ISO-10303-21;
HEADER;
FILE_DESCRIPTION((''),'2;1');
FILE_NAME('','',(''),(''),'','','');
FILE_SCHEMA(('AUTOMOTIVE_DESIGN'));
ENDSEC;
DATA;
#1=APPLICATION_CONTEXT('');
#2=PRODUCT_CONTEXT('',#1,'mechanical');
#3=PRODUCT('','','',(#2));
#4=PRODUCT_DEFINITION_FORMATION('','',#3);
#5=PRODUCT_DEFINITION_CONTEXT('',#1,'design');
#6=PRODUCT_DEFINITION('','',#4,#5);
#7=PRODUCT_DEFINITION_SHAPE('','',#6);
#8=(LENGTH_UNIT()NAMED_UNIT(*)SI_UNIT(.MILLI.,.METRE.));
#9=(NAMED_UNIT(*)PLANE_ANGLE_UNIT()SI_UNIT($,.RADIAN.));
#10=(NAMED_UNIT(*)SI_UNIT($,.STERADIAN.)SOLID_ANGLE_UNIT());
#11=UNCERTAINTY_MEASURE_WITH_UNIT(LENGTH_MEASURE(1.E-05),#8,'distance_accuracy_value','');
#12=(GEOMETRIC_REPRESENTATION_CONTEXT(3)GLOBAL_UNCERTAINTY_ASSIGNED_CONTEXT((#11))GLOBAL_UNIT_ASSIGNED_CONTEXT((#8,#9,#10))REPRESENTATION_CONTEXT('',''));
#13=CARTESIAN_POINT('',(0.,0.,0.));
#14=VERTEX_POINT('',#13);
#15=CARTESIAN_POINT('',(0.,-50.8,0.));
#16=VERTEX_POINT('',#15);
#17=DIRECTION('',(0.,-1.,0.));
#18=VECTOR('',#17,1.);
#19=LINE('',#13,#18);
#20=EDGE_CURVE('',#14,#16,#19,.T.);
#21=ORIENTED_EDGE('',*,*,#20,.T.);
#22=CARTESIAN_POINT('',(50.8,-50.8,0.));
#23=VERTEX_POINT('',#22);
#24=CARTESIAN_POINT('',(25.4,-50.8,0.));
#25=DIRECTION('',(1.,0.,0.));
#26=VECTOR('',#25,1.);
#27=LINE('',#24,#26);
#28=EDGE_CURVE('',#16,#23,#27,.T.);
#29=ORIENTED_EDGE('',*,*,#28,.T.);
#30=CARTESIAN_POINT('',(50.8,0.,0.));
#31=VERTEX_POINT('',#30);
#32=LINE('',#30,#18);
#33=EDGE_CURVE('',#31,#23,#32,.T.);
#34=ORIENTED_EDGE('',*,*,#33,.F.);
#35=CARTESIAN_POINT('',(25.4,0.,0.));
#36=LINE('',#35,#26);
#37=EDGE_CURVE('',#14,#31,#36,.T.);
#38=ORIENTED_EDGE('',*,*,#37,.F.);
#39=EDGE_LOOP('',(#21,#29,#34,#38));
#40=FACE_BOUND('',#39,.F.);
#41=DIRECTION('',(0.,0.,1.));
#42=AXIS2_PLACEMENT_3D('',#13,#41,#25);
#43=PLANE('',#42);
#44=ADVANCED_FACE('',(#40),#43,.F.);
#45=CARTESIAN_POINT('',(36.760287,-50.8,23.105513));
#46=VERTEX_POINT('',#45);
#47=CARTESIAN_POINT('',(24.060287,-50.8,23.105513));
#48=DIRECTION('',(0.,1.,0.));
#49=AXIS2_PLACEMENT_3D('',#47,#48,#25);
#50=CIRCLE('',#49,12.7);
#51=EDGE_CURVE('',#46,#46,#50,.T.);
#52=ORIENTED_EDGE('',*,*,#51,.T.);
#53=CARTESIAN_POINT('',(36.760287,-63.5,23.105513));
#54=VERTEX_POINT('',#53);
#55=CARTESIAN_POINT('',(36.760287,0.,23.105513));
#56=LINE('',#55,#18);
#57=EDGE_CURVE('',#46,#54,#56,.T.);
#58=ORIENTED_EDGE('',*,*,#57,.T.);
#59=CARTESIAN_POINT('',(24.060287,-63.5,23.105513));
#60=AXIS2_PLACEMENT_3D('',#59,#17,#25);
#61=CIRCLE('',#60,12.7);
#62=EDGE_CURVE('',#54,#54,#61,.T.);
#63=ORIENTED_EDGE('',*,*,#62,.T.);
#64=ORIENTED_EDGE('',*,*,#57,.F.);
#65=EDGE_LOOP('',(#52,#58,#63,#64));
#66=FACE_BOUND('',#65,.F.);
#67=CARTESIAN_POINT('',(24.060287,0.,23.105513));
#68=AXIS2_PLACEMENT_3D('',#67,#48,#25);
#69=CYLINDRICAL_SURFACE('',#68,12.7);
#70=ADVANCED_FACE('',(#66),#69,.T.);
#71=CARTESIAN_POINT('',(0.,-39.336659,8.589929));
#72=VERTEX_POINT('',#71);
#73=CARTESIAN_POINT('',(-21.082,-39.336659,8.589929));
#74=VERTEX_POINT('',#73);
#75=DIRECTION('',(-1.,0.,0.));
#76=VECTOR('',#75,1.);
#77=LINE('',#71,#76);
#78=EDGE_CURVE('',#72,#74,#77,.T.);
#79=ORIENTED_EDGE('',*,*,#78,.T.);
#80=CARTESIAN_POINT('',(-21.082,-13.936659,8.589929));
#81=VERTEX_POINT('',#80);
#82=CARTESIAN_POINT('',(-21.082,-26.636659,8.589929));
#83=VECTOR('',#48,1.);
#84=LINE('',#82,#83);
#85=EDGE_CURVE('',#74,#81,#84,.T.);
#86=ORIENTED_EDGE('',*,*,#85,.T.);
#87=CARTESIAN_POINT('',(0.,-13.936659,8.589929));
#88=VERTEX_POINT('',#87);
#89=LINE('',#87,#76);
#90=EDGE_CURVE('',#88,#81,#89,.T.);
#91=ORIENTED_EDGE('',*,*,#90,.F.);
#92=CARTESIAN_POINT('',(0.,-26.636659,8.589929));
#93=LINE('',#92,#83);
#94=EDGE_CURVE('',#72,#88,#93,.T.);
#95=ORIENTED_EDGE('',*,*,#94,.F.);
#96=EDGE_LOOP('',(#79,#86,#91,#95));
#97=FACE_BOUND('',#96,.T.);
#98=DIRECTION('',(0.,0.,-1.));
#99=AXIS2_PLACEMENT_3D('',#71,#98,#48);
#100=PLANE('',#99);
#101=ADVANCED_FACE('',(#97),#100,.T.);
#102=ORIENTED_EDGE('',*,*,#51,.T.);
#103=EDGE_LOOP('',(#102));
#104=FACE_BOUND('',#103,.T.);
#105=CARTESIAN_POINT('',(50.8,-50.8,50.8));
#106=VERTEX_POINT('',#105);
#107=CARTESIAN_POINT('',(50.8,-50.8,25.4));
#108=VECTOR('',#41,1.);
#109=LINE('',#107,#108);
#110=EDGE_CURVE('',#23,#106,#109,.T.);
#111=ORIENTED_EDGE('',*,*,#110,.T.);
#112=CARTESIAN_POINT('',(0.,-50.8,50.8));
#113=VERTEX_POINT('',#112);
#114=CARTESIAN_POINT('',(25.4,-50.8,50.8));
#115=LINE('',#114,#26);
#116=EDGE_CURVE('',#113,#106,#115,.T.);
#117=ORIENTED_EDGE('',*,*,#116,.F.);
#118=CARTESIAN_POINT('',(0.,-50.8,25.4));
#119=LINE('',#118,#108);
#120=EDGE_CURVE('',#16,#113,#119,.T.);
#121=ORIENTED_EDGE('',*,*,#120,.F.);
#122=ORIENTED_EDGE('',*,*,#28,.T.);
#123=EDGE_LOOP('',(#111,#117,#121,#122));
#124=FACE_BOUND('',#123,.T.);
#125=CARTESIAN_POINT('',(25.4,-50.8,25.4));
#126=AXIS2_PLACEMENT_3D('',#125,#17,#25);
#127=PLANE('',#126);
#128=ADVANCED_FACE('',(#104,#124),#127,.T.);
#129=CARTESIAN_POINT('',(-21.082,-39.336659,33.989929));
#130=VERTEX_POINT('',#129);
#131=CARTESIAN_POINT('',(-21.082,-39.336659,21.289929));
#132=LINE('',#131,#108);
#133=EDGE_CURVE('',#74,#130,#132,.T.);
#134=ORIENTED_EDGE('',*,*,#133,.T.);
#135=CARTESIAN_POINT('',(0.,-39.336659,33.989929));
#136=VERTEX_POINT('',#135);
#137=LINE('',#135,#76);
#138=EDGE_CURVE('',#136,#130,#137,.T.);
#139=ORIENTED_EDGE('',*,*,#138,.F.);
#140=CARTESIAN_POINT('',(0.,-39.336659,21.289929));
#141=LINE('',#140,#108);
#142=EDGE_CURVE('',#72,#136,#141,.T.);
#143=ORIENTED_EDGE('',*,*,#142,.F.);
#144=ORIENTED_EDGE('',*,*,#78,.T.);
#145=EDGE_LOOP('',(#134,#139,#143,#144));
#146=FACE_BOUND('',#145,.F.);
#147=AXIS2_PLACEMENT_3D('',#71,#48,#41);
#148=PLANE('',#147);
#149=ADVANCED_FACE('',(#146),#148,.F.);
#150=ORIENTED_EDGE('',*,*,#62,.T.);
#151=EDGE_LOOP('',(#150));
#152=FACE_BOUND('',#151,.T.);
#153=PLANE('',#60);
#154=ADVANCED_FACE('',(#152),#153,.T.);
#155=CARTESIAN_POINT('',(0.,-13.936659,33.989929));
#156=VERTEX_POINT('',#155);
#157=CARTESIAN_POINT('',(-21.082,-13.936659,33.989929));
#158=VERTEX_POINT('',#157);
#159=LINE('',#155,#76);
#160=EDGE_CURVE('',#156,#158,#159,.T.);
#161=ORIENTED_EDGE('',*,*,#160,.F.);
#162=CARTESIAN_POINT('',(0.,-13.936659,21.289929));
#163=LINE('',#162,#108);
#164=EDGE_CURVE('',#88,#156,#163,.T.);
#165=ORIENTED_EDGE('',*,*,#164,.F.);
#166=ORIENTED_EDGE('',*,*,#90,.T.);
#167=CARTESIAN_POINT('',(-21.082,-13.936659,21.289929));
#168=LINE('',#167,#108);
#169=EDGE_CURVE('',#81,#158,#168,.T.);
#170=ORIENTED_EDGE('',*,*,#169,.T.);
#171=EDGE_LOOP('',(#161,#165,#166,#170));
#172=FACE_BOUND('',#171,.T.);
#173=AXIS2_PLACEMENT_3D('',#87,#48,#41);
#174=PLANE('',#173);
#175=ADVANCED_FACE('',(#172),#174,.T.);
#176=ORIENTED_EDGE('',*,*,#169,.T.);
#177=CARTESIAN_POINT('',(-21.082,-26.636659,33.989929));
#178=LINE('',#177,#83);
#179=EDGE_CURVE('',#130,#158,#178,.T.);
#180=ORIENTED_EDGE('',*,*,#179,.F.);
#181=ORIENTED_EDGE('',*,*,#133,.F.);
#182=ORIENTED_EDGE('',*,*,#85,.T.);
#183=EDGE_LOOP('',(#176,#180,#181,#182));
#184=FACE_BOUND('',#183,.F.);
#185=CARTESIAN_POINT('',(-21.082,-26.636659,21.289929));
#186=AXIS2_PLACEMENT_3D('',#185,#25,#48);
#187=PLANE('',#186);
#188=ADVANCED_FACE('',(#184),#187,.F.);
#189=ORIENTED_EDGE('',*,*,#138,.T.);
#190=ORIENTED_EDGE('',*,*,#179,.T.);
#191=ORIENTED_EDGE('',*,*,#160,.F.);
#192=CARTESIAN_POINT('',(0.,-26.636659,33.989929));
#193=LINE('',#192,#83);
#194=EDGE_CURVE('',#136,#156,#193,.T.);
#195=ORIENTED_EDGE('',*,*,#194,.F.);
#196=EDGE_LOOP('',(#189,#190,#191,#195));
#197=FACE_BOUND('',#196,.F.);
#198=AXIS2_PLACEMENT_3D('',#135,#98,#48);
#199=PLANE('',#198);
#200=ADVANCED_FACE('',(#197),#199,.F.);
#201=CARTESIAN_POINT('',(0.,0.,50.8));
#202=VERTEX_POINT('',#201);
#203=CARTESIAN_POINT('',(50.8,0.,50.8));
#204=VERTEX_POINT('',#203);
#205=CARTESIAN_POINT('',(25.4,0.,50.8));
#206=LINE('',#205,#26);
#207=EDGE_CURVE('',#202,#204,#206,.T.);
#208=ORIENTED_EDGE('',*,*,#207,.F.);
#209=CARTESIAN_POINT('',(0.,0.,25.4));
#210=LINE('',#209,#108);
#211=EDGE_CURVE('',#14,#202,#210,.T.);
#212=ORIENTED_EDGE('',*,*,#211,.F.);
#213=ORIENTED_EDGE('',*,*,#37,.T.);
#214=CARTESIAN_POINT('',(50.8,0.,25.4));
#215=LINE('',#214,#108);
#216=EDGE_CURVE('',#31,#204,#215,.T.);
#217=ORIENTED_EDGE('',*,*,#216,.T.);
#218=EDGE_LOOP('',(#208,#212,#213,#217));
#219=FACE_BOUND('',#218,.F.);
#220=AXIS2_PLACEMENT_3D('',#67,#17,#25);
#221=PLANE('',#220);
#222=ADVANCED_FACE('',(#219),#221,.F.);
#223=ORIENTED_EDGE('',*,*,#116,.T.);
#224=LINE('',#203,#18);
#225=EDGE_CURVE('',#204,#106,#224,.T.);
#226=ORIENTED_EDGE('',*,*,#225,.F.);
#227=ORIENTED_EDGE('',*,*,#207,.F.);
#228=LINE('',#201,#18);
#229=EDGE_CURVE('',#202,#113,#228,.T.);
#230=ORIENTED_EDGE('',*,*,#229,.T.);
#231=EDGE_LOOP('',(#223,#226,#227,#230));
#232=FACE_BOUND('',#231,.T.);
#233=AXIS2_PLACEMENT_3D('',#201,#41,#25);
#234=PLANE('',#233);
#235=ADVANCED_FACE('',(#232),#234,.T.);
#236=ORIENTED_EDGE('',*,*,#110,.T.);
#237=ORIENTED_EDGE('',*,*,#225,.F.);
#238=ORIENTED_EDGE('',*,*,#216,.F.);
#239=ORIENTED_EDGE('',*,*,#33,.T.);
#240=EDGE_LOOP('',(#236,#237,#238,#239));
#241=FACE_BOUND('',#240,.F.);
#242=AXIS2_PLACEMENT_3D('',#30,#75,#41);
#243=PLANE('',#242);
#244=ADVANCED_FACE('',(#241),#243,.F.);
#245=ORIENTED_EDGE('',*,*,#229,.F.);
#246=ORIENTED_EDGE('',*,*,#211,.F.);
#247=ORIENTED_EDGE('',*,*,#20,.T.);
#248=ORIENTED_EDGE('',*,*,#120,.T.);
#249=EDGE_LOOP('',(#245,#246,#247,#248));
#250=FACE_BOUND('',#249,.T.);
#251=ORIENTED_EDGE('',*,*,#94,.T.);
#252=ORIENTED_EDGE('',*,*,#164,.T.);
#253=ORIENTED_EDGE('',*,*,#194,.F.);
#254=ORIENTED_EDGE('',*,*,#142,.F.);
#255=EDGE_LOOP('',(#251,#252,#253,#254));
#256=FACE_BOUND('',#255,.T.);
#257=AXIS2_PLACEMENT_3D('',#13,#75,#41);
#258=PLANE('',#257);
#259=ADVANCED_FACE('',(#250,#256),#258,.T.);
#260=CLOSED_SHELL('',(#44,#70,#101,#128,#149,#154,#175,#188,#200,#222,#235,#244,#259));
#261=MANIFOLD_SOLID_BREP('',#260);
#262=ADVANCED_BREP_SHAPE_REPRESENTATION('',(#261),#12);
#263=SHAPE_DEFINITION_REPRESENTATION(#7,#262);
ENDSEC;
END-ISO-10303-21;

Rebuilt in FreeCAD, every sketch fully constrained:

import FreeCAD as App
import Part
import Sketcher
Q = App.Units.Quantity

doc = App.newDocument("Part")
body = doc.addObject("PartDesign::Body", "Body")

# Sketch on XZ plane
sketch1 = body.newObject("Sketcher::SketchObject", "Sketch")
sketch1.AttachmentSupport = (doc.getObject("XZ_Plane"), [""])
sketch1.MapMode = "FlatFace"
sketch1.addGeometry([
    Part.LineSegment(App.Vector(0, 51, 0), App.Vector(0, 0, 0)),
    Part.LineSegment(App.Vector(0, 0, 0), App.Vector(51, 0, 0)),
    Part.LineSegment(App.Vector(51, 0, 0), App.Vector(51, 51, 0)),
    Part.LineSegment(App.Vector(51, 51, 0), App.Vector(0, 51, 0)),
], False)
sketch1.addConstraint([
    Sketcher.Constraint("Coincident", 0, 2, 1, 1),
    Sketcher.Constraint("Coincident", 1, 2, 2, 1),
    Sketcher.Constraint("Coincident", 2, 2, 3, 1),
    Sketcher.Constraint("Coincident", 3, 2, 0, 1),
    Sketcher.Constraint("Vertical", 0),
    Sketcher.Constraint("Horizontal", 1),
    Sketcher.Constraint("Vertical", 2),
    Sketcher.Constraint("Horizontal", 3),
    Sketcher.Constraint("Coincident", 0, 2, -1, 1),
    Sketcher.Constraint("Equal", 3, 0),
    Sketcher.Constraint("DistanceX", 1, 1, 1, 2, Q("2 in")),
])
pad1 = body.newObject("PartDesign::Pad", "Pad")
pad1.Profile = sketch1
pad1.Length = Q("2 in")

# Sketch on XZ plane
sketch2 = body.newObject("Sketcher::SketchObject", "Sketch001")
sketch2.AttachmentSupport = (doc.getObject("XZ_Plane"), [""])
sketch2.MapMode = "FlatFace"
sketch2.addGeometry(Part.Circle(App.Vector(24, 23, 0), App.Vector(0, 0, 1), 13), False)
sketch2.addConstraint([
    Sketcher.Constraint("Diameter", 0, Q("1 in")),
    Sketcher.Constraint("DistanceX", -1, 1, 0, 3, 24.060287),
    Sketcher.Constraint("DistanceY", -1, 1, 0, 3, 23.105513),
])
pad2 = body.newObject("PartDesign::Pad", "Pad001")
pad2.Profile = sketch2
pad2.Length = Q("2.5 in")

# Sketch on YZ plane
sketch3 = body.newObject("Sketcher::SketchObject", "Sketch002")
sketch3.AttachmentSupport = (doc.getObject("YZ_Plane"), [""])
sketch3.MapMode = "FlatFace"
sketch3.addGeometry([
    Part.LineSegment(App.Vector(-39, 34, 0), App.Vector(-39, 9, 0)),
    Part.LineSegment(App.Vector(-39, 9, 0), App.Vector(-14, 9, 0)),
    Part.LineSegment(App.Vector(-14, 9, 0), App.Vector(-14, 34, 0)),
    Part.LineSegment(App.Vector(-14, 34, 0), App.Vector(-39, 34, 0)),
], False)
sketch3.addConstraint([
    Sketcher.Constraint("Coincident", 0, 2, 1, 1),
    Sketcher.Constraint("Coincident", 1, 2, 2, 1),
    Sketcher.Constraint("Coincident", 2, 2, 3, 1),
    Sketcher.Constraint("Coincident", 3, 2, 0, 1),
    Sketcher.Constraint("Vertical", 0),
    Sketcher.Constraint("Horizontal", 1),
    Sketcher.Constraint("Vertical", 2),
    Sketcher.Constraint("Horizontal", 3),
    Sketcher.Constraint("Equal", 3, 0),
    Sketcher.Constraint("DistanceX", 1, 1, 1, 2, Q("1 in")),
    Sketcher.Constraint("DistanceX", 0, 2, -1, 1, 39.336659),
    Sketcher.Constraint("DistanceY", -1, 1, 0, 2, 8.589929),
])
pad3 = body.newObject("PartDesign::Pad", "Pad002")
pad3.Profile = sketch3
pad3.Length = Q("0.83 in")
pad3.Reversed = True

doc.recompute()
